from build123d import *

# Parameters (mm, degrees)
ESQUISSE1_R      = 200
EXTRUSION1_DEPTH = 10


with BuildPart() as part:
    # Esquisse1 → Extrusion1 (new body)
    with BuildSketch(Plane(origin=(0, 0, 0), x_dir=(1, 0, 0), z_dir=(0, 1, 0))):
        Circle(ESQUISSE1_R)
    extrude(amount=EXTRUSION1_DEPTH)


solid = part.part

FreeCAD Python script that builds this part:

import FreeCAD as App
import Part
import Sketcher
Q = App.Units.Quantity

doc = App.newDocument("Part")
body = doc.addObject("PartDesign::Body", "Body")

sketch1 = doc.addObject("Sketcher::SketchObject", "Sketch")
body.addObject(sketch1)
sketch1.AttachmentSupport = (doc.XZ_Plane, [""])
sketch1.MapMode = "FlatFace"
sketch1.addGeometry(Part.Circle(App.Vector(0, 0, 0), App.Vector(0, 0, 1), 200), False)
sketch1.addConstraint([
    Sketcher.Constraint("Coincident", 0, 3, -1, 1),
    Sketcher.Constraint("Diameter", 0, Q("400 mm")),
])
pad1 = doc.addObject("PartDesign::Pad", "Pad")
body.addObject(pad1)
pad1.Profile = sketch1
pad1.Length = 10
pad1.Reversed = True

doc.recompute()
